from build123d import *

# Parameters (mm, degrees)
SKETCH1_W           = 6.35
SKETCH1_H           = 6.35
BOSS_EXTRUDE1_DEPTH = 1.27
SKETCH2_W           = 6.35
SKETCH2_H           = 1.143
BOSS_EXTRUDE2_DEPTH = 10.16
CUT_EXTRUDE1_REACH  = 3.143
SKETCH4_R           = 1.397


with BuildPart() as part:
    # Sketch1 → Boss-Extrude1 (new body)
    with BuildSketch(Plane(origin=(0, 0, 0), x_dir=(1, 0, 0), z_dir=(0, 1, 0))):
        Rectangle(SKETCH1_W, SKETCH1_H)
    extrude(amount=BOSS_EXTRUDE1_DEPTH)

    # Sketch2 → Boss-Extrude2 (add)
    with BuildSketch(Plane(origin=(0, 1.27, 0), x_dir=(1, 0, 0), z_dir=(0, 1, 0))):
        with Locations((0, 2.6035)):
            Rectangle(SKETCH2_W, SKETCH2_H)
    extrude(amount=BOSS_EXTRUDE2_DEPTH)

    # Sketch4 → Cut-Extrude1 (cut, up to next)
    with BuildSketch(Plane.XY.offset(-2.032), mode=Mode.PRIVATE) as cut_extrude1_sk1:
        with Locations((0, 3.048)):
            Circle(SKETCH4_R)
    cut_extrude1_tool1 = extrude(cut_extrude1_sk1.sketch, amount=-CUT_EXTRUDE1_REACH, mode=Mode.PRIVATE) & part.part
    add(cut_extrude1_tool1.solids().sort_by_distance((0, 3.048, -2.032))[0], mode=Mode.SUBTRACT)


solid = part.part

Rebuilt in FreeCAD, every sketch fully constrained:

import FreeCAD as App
import Part
import Sketcher

V = App.Vector
Q = App.Units.Quantity

doc = App.newDocument("Part")
body = doc.addObject("PartDesign::Body", "Body")

# Sketch on XZ plane
sketch1 = doc.addObject("Sketcher::SketchObject", "Sketch")
body.addObject(sketch1)
sketch1.AttachmentSupport = (doc.XZ_Plane, [""])
sketch1.MapMode = "FlatFace"
sketch1.addGeometry([
    Part.LineSegment(V(-3, -3, 0), V(-3, 3, 0)),
    Part.LineSegment(V(-3, 3, 0), V(3, 3, 0)),
    Part.LineSegment(V(3, 3, 0), V(3, -3, 0)),
    Part.LineSegment(V(3, -3, 0), V(-3, -3, 0)),
], False)
sketch1.addConstraint([
    Sketcher.Constraint("Coincident", 0, 2, 1, 1),
    Sketcher.Constraint("Coincident", 1, 2, 2, 1),
    Sketcher.Constraint("Coincident", 2, 2, 3, 1),
    Sketcher.Constraint("Coincident", 3, 2, 0, 1),
    Sketcher.Constraint("Vertical", 0),
    Sketcher.Constraint("Horizontal", 1),
    Sketcher.Constraint("Vertical", 2),
    Sketcher.Constraint("Horizontal", 3),
    Sketcher.Constraint("Symmetric", 0, 2, 2, 2, -1, 1),
    Sketcher.Constraint("Equal", 3, 0),
    Sketcher.Constraint("DistanceX", 1, 1, 1, 2, Q("0.25 in")),
])
pad1 = doc.addObject("PartDesign::Pad", "Pad")
body.addObject(pad1)
pad1.Profile = sketch1
pad1.Length = Q("0.05 in")
pad1.Reversed = True

# Sketch on XZ plane
sketch2 = doc.addObject("Sketcher::SketchObject", "Sketch001")
body.addObject(sketch2)
sketch2.AttachmentSupport = (doc.XZ_Plane, [""])
sketch2.MapMode = "FlatFace"
sketch2.AttachmentOffset = App.Placement(V(0, 0, -0.05 * 25.4), App.Rotation())
sketch2.addGeometry([
    Part.LineSegment(V(-3.2, -3.2, 0), V(-3.2, -2, 0)),
    Part.LineSegment(V(-3.2, -2, 0), V(3.2, -2, 0)),
    Part.LineSegment(V(3.2, -2, 0), V(3.2, -3.2, 0)),
    Part.LineSegment(V(3.2, -3.2, 0), V(-3.2, -3.2, 0)),
], False)
sketch2.addConstraint([
    Sketcher.Constraint("Coincident", 0, 2, 1, 1),
    Sketcher.Constraint("Coincident", 1, 2, 2, 1),
    Sketcher.Constraint("Coincident", 2, 2, 3, 1),
    Sketcher.Constraint("Coincident", 3, 2, 0, 1),
    Sketcher.Constraint("Vertical", 0),
    Sketcher.Constraint("Horizontal", 1),
    Sketcher.Constraint("Vertical", 2),
    Sketcher.Constraint("Horizontal", 3),
    Sketcher.Constraint("DistanceX", 1, 1, 1, 2, Q("0.25 in")),
    Sketcher.Constraint("DistanceY", 0, 1, 0, 2, Q("0.045 in")),
    Sketcher.Constraint("DistanceY", 0, 2, -1, 1, Q("0.08 in")),
    Sketcher.Constraint("DistanceX", 0, 2, -1, 1, Q("0.125 in")),
])
pad2 = doc.addObject("PartDesign::Pad", "Pad001")
body.addObject(pad2)
pad2.Profile = sketch2
pad2.Length = Q("0.4 in")
pad2.Reversed = True

# Sketch on XY plane
sketch3 = doc.addObject("Sketcher::SketchObject", "Sketch002")
body.addObject(sketch3)
sketch3.AttachmentSupport = (doc.XY_Plane, [""])
sketch3.MapMode = "FlatFace"
sketch3.AttachmentOffset = App.Placement(V(0, 0, -0.08 * 25.4), App.Rotation())
sketch3.addGeometry(Part.Circle(V(0, 3, 0), V(0, 0, 1), 1.4), False)
sketch3.addConstraint([
    Sketcher.Constraint("PointOnObject", 0, 3, -2),
    Sketcher.Constraint("Diameter", 0, Q("0.11 in")),
    Sketcher.Constraint("DistanceY", -1, 1, 0, 3, Q("0.12 in")),
])
pocket1 = doc.addObject("PartDesign::Pocket", "Pocket")
body.addObject(pocket1)
pocket1.Profile = sketch3
pocket1.Type = "UpToFirst"

doc.recompute()
